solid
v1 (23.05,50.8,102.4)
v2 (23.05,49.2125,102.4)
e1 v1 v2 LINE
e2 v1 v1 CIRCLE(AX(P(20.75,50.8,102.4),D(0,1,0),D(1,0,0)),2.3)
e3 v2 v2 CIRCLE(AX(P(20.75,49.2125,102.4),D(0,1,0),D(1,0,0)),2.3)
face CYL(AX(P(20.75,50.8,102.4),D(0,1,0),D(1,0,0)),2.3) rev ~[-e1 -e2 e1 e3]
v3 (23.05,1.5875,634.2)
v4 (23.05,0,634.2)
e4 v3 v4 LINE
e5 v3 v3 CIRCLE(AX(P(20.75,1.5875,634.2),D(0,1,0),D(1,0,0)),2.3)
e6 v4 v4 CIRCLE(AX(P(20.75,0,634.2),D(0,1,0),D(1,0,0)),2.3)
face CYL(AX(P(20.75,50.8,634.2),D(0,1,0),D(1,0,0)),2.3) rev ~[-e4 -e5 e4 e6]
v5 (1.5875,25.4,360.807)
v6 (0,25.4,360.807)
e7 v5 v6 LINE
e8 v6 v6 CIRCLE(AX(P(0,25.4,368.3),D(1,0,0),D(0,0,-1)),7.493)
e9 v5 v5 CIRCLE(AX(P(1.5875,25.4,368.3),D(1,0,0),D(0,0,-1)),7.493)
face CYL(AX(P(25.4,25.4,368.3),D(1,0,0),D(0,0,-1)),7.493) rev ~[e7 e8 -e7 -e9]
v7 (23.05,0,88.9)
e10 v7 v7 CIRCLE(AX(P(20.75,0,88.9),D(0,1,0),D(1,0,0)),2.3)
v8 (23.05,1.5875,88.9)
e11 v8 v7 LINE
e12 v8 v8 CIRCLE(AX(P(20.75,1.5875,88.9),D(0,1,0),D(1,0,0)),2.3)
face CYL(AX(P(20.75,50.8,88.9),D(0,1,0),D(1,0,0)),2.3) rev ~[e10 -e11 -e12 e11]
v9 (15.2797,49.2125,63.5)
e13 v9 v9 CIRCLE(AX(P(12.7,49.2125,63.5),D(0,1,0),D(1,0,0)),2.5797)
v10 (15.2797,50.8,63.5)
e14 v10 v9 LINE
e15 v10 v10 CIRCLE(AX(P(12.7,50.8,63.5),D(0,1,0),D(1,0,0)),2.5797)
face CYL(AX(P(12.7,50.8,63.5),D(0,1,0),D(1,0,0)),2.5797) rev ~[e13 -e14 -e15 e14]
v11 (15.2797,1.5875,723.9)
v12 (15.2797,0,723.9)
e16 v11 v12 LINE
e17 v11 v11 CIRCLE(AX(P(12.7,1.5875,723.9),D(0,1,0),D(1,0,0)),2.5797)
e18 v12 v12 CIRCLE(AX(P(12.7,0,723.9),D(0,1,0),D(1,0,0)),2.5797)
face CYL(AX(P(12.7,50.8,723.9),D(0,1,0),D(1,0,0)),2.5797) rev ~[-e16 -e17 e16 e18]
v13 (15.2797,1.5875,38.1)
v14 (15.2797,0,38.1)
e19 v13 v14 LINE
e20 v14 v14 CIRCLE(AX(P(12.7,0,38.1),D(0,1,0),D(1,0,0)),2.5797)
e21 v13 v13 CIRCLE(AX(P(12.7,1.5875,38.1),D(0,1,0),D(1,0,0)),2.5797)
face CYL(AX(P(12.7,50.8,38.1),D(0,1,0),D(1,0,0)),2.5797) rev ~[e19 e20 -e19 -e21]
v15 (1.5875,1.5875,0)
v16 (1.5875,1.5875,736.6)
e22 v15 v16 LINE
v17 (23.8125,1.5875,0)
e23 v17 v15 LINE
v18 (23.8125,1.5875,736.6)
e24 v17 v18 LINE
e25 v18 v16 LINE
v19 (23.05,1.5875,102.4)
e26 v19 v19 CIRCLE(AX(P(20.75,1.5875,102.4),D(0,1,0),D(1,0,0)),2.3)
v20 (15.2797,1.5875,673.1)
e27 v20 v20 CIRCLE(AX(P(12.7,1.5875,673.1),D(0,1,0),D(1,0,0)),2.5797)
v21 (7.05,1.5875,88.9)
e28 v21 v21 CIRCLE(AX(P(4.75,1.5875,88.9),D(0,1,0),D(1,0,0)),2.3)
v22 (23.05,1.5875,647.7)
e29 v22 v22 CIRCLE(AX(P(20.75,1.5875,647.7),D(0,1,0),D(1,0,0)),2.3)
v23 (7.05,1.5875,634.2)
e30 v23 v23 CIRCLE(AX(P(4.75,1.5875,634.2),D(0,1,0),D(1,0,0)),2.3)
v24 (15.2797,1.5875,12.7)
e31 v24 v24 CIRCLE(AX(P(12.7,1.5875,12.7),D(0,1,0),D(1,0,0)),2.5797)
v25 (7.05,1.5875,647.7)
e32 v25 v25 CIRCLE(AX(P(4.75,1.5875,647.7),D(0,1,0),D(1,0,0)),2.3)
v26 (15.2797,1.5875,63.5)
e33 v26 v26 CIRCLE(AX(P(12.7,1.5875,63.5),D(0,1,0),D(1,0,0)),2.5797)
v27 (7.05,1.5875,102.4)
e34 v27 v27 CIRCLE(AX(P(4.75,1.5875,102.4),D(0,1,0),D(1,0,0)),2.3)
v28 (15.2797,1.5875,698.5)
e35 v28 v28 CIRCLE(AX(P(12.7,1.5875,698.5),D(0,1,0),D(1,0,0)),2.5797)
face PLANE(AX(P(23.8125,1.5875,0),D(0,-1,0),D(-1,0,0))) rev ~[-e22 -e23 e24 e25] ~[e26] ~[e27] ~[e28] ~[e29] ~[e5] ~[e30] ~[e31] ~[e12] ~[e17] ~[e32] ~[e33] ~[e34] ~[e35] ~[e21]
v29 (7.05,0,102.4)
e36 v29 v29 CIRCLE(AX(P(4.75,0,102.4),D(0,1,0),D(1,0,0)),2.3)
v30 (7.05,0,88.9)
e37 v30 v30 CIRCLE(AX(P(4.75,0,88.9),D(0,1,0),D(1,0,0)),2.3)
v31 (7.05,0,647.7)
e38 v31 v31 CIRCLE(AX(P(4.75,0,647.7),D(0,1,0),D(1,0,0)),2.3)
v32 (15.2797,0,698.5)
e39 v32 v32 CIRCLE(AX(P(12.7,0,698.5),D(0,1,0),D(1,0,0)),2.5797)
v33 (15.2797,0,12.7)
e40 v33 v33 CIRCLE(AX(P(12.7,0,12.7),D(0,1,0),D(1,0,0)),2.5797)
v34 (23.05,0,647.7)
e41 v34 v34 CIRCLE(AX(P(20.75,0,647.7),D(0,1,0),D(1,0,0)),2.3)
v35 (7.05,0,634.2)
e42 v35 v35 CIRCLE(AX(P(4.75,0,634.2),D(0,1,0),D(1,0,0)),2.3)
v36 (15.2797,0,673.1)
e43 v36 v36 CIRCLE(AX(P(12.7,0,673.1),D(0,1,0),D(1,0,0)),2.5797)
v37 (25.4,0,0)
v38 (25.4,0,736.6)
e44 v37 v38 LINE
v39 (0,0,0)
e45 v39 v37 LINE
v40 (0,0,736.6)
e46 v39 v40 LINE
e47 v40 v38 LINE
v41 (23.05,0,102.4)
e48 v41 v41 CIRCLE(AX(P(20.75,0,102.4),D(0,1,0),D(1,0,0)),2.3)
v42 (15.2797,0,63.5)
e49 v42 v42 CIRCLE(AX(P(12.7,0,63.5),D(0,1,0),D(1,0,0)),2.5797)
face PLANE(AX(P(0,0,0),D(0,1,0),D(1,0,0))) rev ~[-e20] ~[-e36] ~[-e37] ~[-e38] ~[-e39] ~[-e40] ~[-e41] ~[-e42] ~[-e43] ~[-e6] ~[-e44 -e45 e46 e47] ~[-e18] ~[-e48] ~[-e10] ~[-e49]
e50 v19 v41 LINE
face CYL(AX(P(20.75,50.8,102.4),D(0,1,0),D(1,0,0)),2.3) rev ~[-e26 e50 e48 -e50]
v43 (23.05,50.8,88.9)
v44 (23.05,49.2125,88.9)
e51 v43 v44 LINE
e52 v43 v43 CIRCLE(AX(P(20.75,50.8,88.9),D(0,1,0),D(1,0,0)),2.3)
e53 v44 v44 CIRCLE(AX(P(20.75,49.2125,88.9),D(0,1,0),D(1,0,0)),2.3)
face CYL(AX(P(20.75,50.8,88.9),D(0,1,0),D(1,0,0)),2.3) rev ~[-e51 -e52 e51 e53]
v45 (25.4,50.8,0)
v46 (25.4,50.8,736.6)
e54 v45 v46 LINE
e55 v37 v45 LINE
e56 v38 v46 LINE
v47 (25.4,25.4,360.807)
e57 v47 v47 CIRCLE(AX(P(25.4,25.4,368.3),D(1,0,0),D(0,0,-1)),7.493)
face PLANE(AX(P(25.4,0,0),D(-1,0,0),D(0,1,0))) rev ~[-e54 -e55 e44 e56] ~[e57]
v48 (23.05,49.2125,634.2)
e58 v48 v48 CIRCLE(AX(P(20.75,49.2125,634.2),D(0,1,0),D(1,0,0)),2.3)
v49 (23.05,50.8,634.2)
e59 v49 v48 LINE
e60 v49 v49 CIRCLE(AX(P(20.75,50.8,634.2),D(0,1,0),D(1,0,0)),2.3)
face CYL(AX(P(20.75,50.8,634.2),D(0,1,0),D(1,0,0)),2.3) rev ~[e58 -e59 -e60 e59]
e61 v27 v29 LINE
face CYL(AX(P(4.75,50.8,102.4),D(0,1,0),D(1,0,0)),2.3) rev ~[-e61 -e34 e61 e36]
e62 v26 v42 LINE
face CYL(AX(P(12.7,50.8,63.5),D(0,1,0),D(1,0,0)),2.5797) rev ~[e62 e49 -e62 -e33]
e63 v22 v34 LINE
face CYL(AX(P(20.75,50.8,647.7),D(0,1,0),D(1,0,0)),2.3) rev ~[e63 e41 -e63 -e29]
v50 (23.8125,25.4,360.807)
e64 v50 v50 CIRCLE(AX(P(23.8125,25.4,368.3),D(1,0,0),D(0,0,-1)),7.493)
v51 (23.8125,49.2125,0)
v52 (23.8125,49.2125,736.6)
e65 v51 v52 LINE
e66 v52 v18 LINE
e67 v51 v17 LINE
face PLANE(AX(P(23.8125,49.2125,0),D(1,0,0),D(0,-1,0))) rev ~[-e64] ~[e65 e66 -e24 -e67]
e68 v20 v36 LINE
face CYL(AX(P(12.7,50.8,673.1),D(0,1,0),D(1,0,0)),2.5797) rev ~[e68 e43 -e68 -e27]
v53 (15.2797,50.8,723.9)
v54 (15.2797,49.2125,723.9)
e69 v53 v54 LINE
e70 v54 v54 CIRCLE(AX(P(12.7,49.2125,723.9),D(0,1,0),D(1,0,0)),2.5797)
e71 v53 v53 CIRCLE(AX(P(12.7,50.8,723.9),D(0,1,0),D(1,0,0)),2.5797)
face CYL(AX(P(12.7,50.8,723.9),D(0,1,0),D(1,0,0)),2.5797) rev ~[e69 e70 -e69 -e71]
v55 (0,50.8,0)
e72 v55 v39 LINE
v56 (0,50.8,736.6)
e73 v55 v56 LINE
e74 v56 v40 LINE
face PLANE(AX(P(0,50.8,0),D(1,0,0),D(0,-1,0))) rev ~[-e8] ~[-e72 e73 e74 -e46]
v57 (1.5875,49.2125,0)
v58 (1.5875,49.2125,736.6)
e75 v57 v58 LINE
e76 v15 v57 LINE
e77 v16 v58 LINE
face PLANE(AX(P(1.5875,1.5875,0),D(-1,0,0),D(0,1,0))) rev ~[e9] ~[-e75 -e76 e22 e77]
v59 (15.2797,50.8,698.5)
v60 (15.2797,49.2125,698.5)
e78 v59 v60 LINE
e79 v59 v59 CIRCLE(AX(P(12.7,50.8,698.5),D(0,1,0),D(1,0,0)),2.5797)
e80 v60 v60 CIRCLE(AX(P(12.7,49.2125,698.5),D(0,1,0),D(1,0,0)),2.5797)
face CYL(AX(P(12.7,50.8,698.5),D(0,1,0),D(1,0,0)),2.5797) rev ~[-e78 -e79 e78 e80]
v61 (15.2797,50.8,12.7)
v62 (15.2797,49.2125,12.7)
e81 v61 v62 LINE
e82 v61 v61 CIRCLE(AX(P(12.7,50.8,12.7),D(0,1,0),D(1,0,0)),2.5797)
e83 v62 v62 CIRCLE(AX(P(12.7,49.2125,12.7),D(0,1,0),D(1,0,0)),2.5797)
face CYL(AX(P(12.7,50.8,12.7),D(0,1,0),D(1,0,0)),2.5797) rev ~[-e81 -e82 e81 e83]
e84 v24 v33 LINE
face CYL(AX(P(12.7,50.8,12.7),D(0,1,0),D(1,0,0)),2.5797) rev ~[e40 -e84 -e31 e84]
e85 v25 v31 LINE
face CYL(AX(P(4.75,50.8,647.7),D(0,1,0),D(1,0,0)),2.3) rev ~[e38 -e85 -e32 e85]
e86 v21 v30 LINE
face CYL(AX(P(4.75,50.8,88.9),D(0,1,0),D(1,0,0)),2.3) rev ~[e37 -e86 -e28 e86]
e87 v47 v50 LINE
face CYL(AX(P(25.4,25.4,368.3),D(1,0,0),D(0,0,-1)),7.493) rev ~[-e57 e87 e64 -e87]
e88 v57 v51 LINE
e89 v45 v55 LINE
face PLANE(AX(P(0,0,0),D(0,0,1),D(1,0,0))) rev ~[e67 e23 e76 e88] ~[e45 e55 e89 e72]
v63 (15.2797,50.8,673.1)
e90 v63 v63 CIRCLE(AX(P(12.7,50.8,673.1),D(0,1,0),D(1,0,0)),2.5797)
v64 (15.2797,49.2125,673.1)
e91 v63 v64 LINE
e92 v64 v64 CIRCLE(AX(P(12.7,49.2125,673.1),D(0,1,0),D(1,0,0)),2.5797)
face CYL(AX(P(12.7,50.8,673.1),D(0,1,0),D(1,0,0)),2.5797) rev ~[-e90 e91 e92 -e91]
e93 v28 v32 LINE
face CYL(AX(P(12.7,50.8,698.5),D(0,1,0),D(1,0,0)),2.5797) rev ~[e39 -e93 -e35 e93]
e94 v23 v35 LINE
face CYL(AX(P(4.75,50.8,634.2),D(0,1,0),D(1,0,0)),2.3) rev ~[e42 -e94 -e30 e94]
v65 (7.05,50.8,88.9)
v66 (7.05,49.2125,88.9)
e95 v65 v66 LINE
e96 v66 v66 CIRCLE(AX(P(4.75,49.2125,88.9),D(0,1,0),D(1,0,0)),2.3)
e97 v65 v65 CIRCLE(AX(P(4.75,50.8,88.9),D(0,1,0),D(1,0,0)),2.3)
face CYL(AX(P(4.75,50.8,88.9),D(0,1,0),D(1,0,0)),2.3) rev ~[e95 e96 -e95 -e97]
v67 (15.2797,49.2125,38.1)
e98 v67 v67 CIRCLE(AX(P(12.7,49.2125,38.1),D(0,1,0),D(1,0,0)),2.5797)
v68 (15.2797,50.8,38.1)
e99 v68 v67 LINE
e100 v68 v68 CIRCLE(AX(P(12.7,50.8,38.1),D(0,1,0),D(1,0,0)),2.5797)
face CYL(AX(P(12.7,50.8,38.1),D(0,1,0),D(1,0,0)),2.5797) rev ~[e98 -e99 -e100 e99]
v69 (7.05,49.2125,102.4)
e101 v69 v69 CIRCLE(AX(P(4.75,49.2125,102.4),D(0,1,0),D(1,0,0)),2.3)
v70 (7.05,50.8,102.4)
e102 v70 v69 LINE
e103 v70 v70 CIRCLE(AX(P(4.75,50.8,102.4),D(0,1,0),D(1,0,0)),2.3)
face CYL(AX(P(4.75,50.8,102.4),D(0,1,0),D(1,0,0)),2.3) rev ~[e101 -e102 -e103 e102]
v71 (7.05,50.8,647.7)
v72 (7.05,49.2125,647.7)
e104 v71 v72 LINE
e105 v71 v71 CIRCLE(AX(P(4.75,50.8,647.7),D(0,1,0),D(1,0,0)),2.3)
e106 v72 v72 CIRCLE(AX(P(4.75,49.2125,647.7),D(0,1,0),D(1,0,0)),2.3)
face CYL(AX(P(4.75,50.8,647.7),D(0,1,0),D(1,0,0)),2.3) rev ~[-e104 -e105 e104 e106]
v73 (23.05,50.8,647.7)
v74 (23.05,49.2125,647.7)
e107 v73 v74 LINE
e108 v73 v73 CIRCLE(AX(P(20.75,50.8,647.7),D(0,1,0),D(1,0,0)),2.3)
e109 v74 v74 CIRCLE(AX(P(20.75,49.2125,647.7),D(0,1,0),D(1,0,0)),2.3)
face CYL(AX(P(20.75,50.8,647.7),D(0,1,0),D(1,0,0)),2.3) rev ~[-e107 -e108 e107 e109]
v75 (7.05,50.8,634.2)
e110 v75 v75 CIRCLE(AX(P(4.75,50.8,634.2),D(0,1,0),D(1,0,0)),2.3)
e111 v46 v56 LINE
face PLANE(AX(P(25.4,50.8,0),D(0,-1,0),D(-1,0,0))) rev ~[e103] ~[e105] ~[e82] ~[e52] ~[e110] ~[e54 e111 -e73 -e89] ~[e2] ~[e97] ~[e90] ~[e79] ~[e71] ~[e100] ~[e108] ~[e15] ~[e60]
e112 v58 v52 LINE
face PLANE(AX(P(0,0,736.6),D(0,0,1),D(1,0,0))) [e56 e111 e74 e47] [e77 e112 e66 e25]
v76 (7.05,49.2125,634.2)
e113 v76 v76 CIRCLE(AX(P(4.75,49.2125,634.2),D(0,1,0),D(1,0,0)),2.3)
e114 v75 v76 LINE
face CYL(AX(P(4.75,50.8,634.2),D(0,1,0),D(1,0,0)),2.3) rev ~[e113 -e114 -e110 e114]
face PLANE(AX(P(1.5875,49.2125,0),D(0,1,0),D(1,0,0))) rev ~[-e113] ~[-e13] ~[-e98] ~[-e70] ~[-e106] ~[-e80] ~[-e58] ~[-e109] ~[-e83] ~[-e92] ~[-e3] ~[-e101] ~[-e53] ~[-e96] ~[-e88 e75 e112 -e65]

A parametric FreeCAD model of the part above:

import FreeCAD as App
import Part
import Sketcher

V = App.Vector
Q = App.Units.Quantity

doc = App.newDocument("Part")
body = doc.addObject("PartDesign::Body", "Body")

# Sketch on XY plane
sketch1 = doc.addObject("Sketcher::SketchObject", "Sketch")
body.addObject(sketch1)
sketch1.AttachmentSupport = (doc.XY_Plane, [""])
sketch1.MapMode = "FlatFace"
sketch1.addGeometry(Part.LineSegment(V(0, 51, 0), V(0, 0, 0)), False)
sketch1.addGeometry(Part.LineSegment(V(0, 0, 0), V(25, 0, 0)), False)
sketch1.addGeometry(Part.LineSegment(V(25, 0, 0), V(25, 51, 0)), False)
sketch1.addGeometry(Part.LineSegment(V(25, 51, 0), V(0, 51, 0)), False)
sketch1.addGeometry(Part.LineSegment(V(2, 2, 0), V(2, 49, 0)), False)
sketch1.addGeometry(Part.LineSegment(V(2, 49, 0), V(24, 49, 0)), False)
sketch1.addGeometry(Part.LineSegment(V(24, 49, 0), V(24, 2, 0)), False)
sketch1.addGeometry(Part.LineSegment(V(24, 2, 0), V(2, 2, 0)), False)
sketch1.addConstraint(Sketcher.Constraint("Coincident", 0, 2, 1, 1))
sketch1.addConstraint(Sketcher.Constraint("Coincident", 1, 2, 2, 1))
sketch1.addConstraint(Sketcher.Constraint("Coincident", 2, 2, 3, 1))
sketch1.addConstraint(Sketcher.Constraint("Coincident", 3, 2, 0, 1))
sketch1.addConstraint(Sketcher.Constraint("Coincident", 4, 2, 5, 1))
sketch1.addConstraint(Sketcher.Constraint("Coincident", 5, 2, 6, 1))
sketch1.addConstraint(Sketcher.Constraint("Coincident", 6, 2, 7, 1))
sketch1.addConstraint(Sketcher.Constraint("Coincident", 7, 2, 4, 1))
sketch1.addConstraint(Sketcher.Constraint("Vertical", 0))
sketch1.addConstraint(Sketcher.Constraint("Horizontal", 1))
sketch1.addConstraint(Sketcher.Constraint("Vertical", 2))
sketch1.addConstraint(Sketcher.Constraint("Horizontal", 3))
sketch1.addConstraint(Sketcher.Constraint("Vertical", 4))
sketch1.addConstraint(Sketcher.Constraint("Horizontal", 5))
sketch1.addConstraint(Sketcher.Constraint("Vertical", 6))
sketch1.addConstraint(Sketcher.Constraint("Horizontal", 7))
sketch1.addConstraint(Sketcher.Constraint("Coincident", 0, 2, -1, 1))
sketch1.addConstraint(Sketcher.Constraint("DistanceX", 1, 1, 1, 2, Q("1 in")))
sketch1.addConstraint(Sketcher.Constraint("DistanceY", 0, 2, 0, 1, Q("2 in")))
sketch1.addConstraint(Sketcher.Constraint("DistanceX", -1, 1, 4, 2, Q("0.0625 in")))
sketch1.addConstraint(Sketcher.Constraint("DistanceY", -1, 1, 6, 2, Q("0.0625 in")))
sketch1.addConstraint(Sketcher.Constraint("DistanceY", 4, 2, 3, 2, Q("0.0625 in")))
sketch1.addConstraint(Sketcher.Constraint("DistanceX", 5, 2, 2, 2, Q("0.0625 in")))
pad1 = doc.addObject("PartDesign::Pad", "Pad")
body.addObject(pad1)
pad1.Profile = sketch1
pad1.Length = Q("29 in")

# Sketch on XZ plane
sketch2 = doc.addObject("Sketcher::SketchObject", "Sketch001")
body.addObject(sketch2)
sketch2.AttachmentSupport = (doc.XZ_Plane, [""])
sketch2.MapMode = "FlatFace"
sketch2.AttachmentOffset = App.Placement(V(0, 0, -2 * 25.4), App.Rotation())
sketch2.addGeometry(Part.Circle(V(12.7, 12.7, 0), V(0, 0, 1), 2.6), False)
sketch2.addGeometry(Part.Circle(V(12.7, 38.1, 0), V(0, 0, 1), 2.6), False)
sketch2.addGeometry(Part.Circle(V(12.7, 63.5, 0), V(0, 0, 1), 2.6), False)
sketch2.addGeometry(Part.Circle(V(12.7, 723.9, 0), V(0, 0, 1), 2.6), False)
sketch2.addGeometry(Part.Circle(V(12.7, 698.5, 0), V(0, 0, 1), 2.6), False)
sketch2.addGeometry(Part.Circle(V(12.7, 673.1, 0), V(0, 0, 1), 2.6), False)
sketch2.addConstraint(Sketcher.Constraint("Equal", 0, 1))
sketch2.addConstraint(Sketcher.Constraint("Equal", 1, 2))
sketch2.addConstraint(Sketcher.Constraint("Equal", 2, 3))
sketch2.addConstraint(Sketcher.Constraint("Equal", 3, 4))
sketch2.addConstraint(Sketcher.Constraint("Equal", 4, 5))
sketch2.addConstraint(Sketcher.Constraint("Vertical", 0, 3, 1, 3))
sketch2.addConstraint(Sketcher.Constraint("Vertical", 1, 3, 2, 3))
sketch2.addConstraint(Sketcher.Constraint("Vertical", 2, 3, 3, 3))
sketch2.addConstraint(Sketcher.Constraint("Vertical", 3, 3, 4, 3))
sketch2.addConstraint(Sketcher.Constraint("Vertical", 4, 3, 5, 3))
sketch2.addConstraint(Sketcher.Constraint("Diameter", 0, Q("0.203126 in")))
sketch2.addConstraint(Sketcher.Constraint("DistanceY", 0, 3, 1, 3, Q("1 in")))
sketch2.addConstraint(Sketcher.Constraint("DistanceY", 1, 3, 2, 3, Q("1 in")))
sketch2.addConstraint(Sketcher.Constraint("DistanceY", 4, 3, 3, 3, Q("1 in")))
sketch2.addConstraint(Sketcher.Constraint("DistanceY", 5, 3, 4, 3, Q("1 in")))
sketch2.addConstraint(Sketcher.Constraint("DistanceX", -1, 1, 0, 3, Q("0.5 in")))
sketch2.addConstraint(Sketcher.Constraint("DistanceY", -1, 1, 0, 3, Q("0.5 in")))
sketch2.addConstraint(Sketcher.Constraint("DistanceY", 2, 3, 3, 3, Q("26 in")))
pocket1 = doc.addObject("PartDesign::Pocket", "Pocket")
body.addObject(pocket1)
pocket1.Profile = sketch2
pocket1.Length = Q("6 in")
pocket1.Reversed = True

# Sketch on YZ plane
sketch3 = doc.addObject("Sketcher::SketchObject", "Sketch002")
body.addObject(sketch3)
sketch3.AttachmentSupport = (doc.YZ_Plane, [""])
sketch3.MapMode = "FlatFace"
sketch3.AttachmentOffset = App.Placement(V(0, 0, 1 * 25.4), App.Rotation())
sketch3.addGeometry(Part.Circle(V(25, 368, 0), V(0, 0, 1), 7), False)
sketch3.addConstraint(Sketcher.Constraint("Diameter", 0, Q("0.59 in")))
sketch3.addConstraint(Sketcher.Constraint("DistanceX", -1, 1, 0, 3, Q("1 in")))
sketch3.addConstraint(Sketcher.Constraint("DistanceY", -1, 1, 0, 3, Q("14.5 in")))
pocket2 = doc.addObject("PartDesign::Pocket", "Pocket001")
body.addObject(pocket2)
pocket2.Profile = sketch3
pocket2.Length = Q("1 in")

# Sketch on XZ plane
sketch4 = doc.addObject("Sketcher::SketchObject", "Sketch003")
body.addObject(sketch4)
sketch4.AttachmentSupport = (doc.XZ_Plane, [""])
sketch4.MapMode = "FlatFace"
sketch4.AttachmentOffset = App.Placement(V(0, 0, -2 * 25.4), App.Rotation())
sketch4.addGeometry(Part.Circle(V(4.8, 88.9, 0), V(0, 0, 1), 2.3), False)
sketch4.addGeometry(Part.Circle(V(20.8, 88.9, 0), V(0, 0, 1), 2.3), False)
sketch4.addGeometry(Part.Circle(V(20.8, 102.4, 0), V(0, 0, 1), 2.3), False)
sketch4.addGeometry(Part.Circle(V(4.8, 102.4, 0), V(0, 0, 1), 2.3), False)
sketch4.addGeometry(Part.Circle(V(4.8, 647.7, 0), V(0, 0, 1), 2.3), False)
sketch4.addGeometry(Part.Circle(V(20.8, 647.7, 0), V(0, 0, 1), 2.3), False)
sketch4.addGeometry(Part.Circle(V(20.8, 634.2, 0), V(0, 0, 1), 2.3), False)
sketch4.addGeometry(Part.Circle(V(4.8, 634.2, 0), V(0, 0, 1), 2.3), False)
sketch4.addConstraint(Sketcher.Constraint("Equal", 0, 1))
sketch4.addConstraint(Sketcher.Constraint("Equal", 1, 2))
sketch4.addConstraint(Sketcher.Constraint("Equal", 2, 3))
sketch4.addConstraint(Sketcher.Constraint("Equal", 3, 4))
sketch4.addConstraint(Sketcher.Constraint("Equal", 4, 5))
sketch4.addConstraint(Sketcher.Constraint("Equal", 5, 6))
sketch4.addConstraint(Sketcher.Constraint("Equal", 6, 7))
sketch4.addConstraint(Sketcher.Constraint("Horizontal", 0, 3, 1, 3))
sketch4.addConstraint(Sketcher.Constraint("Horizontal", 2, 3, 3, 3))
sketch4.addConstraint(Sketcher.Constraint("Horizontal", 4, 3, 5, 3))
sketch4.addConstraint(Sketcher.Constraint("Horizontal", 6, 3, 7, 3))
sketch4.addConstraint(Sketcher.Constraint("Vertical", 1, 3, 2, 3))
sketch4.addConstraint(Sketcher.Constraint("Vertical", 0, 3, 3, 3))
sketch4.addConstraint(Sketcher.Constraint("Vertical", 3, 3, 4, 3))
sketch4.addConstraint(Sketcher.Constraint("Vertical", 2, 3, 5, 3))
sketch4.addConstraint(Sketcher.Constraint("Vertical", 5, 3, 6, 3))
sketch4.addConstraint(Sketcher.Constraint("Vertical", 4, 3, 7, 3))
sketch4.addConstraint(Sketcher.Constraint("Diameter", 0, Q("0.1811 in")))
sketch4.addConstraint(Sketcher.Constraint("DistanceY", -1, 1, 0, 3, Q("3.5 in")))
sketch4.addConstraint(Sketcher.Constraint("DistanceX", -1, 1, 0, 3, Q("0.187 in")))
sketch4.addConstraint(Sketcher.Constraint("DistanceY", 0, 3, 4, 3, Q("22 in")))
sketch4.addConstraint(Sketcher.Constraint("DistanceY", 1, 3, 2, 3, Q("0.5315 in")))
sketch4.addConstraint(Sketcher.Constraint("DistanceY", 6, 3, 5, 3, Q("0.5315 in")))
sketch4.addConstraint(Sketcher.Constraint("DistanceX", 0, 3, 1, 3, 16.0))
pocket3 = doc.addObject("PartDesign::Pocket", "Pocket002")
body.addObject(pocket3)
pocket3.Profile = sketch4
pocket3.Length = Q("10.9375 in")
pocket3.Reversed = True

doc.recompute()
